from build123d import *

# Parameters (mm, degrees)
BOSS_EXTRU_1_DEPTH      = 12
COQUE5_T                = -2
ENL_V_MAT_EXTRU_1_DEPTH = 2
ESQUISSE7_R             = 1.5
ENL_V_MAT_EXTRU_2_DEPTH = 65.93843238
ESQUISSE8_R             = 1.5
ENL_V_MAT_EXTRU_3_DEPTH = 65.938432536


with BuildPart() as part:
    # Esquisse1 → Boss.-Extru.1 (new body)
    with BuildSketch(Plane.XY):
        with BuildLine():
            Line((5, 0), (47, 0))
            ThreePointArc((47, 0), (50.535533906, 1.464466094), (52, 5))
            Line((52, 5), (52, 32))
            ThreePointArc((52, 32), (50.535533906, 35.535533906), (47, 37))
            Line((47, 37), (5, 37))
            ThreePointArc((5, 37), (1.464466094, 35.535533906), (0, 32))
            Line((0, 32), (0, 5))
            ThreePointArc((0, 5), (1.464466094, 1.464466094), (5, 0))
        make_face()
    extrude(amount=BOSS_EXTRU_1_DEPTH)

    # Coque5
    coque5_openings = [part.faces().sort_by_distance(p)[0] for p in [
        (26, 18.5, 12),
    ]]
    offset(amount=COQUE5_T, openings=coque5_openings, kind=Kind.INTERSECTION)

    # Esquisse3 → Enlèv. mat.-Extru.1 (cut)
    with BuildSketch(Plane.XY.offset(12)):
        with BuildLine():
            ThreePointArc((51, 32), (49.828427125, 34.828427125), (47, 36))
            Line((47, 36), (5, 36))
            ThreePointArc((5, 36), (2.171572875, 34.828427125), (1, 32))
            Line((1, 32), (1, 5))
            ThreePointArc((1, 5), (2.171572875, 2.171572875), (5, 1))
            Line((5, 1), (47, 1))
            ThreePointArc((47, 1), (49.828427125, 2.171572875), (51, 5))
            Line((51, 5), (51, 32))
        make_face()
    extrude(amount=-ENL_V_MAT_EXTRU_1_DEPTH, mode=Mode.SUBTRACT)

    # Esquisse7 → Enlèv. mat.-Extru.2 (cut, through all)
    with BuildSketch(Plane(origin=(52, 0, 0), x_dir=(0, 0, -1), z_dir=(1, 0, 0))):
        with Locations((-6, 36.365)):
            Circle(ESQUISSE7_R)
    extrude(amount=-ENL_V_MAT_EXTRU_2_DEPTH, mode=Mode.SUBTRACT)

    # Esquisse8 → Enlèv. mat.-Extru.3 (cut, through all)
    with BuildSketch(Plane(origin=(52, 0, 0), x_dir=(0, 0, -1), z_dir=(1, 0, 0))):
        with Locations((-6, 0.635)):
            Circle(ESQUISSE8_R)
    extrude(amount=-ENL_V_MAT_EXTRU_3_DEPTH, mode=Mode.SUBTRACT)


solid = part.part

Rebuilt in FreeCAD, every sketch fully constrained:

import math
import FreeCAD as App
import Part
import Sketcher

V = App.Vector


def faces_at(feature, points):
    """Names of the faces that lie closest to the given points."""
    faces = feature.Shape.Faces
    near = lambda p: min(range(len(faces)), key=lambda i: faces[i].distToShape(Part.Vertex(*p))[0])
    return sorted({f"Face{near(p) + 1}" for p in points})

doc = App.newDocument("Part")
params = doc.addObject("Spreadsheet::Sheet", "Params")
for row, (alias, value) in enumerate([
    ("sketch1_radius", "5 mm"),
    ("sketch1_width", "42 mm"),
    ("sketch1_height", "27 mm"),
    ("pad1_length", "12 mm"),
    ("thickness_wall", "2 mm"),
    ("sketch2_radius", "4 mm"),
    ("sketch2_width", "42 mm"),
    ("sketch2_height", "27 mm"),
    ("pocket1_length", "2 mm"),
    ("sketch3_diameter", "3 mm"),
    ("sketch4_diameter", "3 mm"),
], start=1):
    params.set(f"A{row}", alias)
    params.set(f"B{row}", "=" + value)
    params.setAlias(f"B{row}", alias)

body = doc.addObject("PartDesign::Body", "Body")

# Sketch on XY plane
sketch1 = doc.addObject("Sketcher::SketchObject", "Sketch")
body.addObject(sketch1)
sketch1.AttachmentSupport = (doc.XY_Plane, [""])
sketch1.MapMode = "FlatFace"
sketch1.addGeometry([
    Part.LineSegment(V(5, 0, 0), V(47, 0, 0)),  # 0
    Part.ArcOfCircle(Part.Circle(V(47, 5, 0), V(0, 0, 1), 5), math.radians(-90), math.radians(0)),  # 1
    Part.LineSegment(V(52, 5, 0), V(52, 32, 0)),  # 2
    Part.ArcOfCircle(Part.Circle(V(47, 32, 0), V(0, 0, 1), 5), math.radians(0), math.radians(90)),  # 3
    Part.LineSegment(V(47, 37, 0), V(5, 37, 0)),  # 4
    Part.ArcOfCircle(Part.Circle(V(5, 32, 0), V(0, 0, 1), 5), math.radians(90), math.radians(180)),  # 5
    Part.LineSegment(V(0, 32, 0), V(0, 5, 0)),  # 6
    Part.ArcOfCircle(Part.Circle(V(5, 5, 0), V(0, 0, 1), 5), math.radians(180), math.radians(270)),  # 7
], False)
sketch1.addConstraint([
    Sketcher.Constraint("Tangent", 0, 2, 1, 1),
    Sketcher.Constraint("Tangent", 1, 2, 2, 1),
    Sketcher.Constraint("Tangent", 2, 2, 3, 1),
    Sketcher.Constraint("Tangent", 3, 2, 4, 1),
    Sketcher.Constraint("Tangent", 4, 2, 5, 1),
    Sketcher.Constraint("Tangent", 5, 2, 6, 1),
    Sketcher.Constraint("Tangent", 6, 2, 7, 1),
    Sketcher.Constraint("Tangent", 7, 2, 0, 1),
    Sketcher.Constraint("Horizontal", 0),
    Sketcher.Constraint("Vertical", 2),
    Sketcher.Constraint("Horizontal", 4),
    Sketcher.Constraint("Vertical", 6),
    Sketcher.Constraint("Equal", 1, 3),
    Sketcher.Constraint("Equal", 3, 5),
    Sketcher.Constraint("Equal", 5, 7),
    Sketcher.Constraint("PointOnObject", 0, 2, -1),
    Sketcher.Constraint("PointOnObject", 5, 2, -2),
    Sketcher.Constraint("Radius", 1, 5.0),
    Sketcher.Constraint("DistanceX", 0, 1, 0, 2, 42.0),
    Sketcher.Constraint("DistanceY", 2, 1, 2, 2, 27.0),
])
sketch1.setExpression("Constraints[17]", "Params.sketch1_radius")
sketch1.setExpression("Constraints[18]", "Params.sketch1_width")
sketch1.setExpression("Constraints[19]", "Params.sketch1_height")
pad1 = doc.addObject("PartDesign::Pad", "Pad")
body.addObject(pad1)
pad1.Profile = sketch1
pad1.setExpression("Length", "Params.pad1_length")
doc.recompute()

thickness = doc.addObject("PartDesign::Thickness", "Thickness")
body.addObject(thickness)
thickness.Base = (pad1, faces_at(pad1, [(26, 18.5, 12)]))
thickness.setExpression("Value", "Params.thickness_wall")
thickness.Reversed = True
thickness.Join = "Intersection"

# Sketch on XY plane
sketch2 = doc.addObject("Sketcher::SketchObject", "Sketch001")
body.addObject(sketch2)
sketch2.AttachmentSupport = (doc.XY_Plane, [""])
sketch2.MapMode = "FlatFace"
sketch2.AttachmentOffset = App.Placement(V(0, 0, 12), App.Rotation())
sketch2.addGeometry([
    Part.ArcOfCircle(Part.Circle(V(47, 32, 0), V(0, 0, 1), 4), math.radians(0), math.radians(90)),  # 0
    Part.LineSegment(V(47, 36, 0), V(5, 36, 0)),  # 1
    Part.ArcOfCircle(Part.Circle(V(5, 32, 0), V(0, 0, 1), 4), math.radians(90), math.radians(180)),  # 2
    Part.LineSegment(V(1, 32, 0), V(1, 5, 0)),  # 3
    Part.ArcOfCircle(Part.Circle(V(5, 5, 0), V(0, 0, 1), 4), math.radians(180), math.radians(270)),  # 4
    Part.LineSegment(V(5, 1, 0), V(47, 1, 0)),  # 5
    Part.ArcOfCircle(Part.Circle(V(47, 5, 0), V(0, 0, 1), 4), math.radians(-90), math.radians(0)),  # 6
    Part.LineSegment(V(51, 5, 0), V(51, 32, 0)),  # 7
], False)
sketch2.addConstraint([
    Sketcher.Constraint("Tangent", 0, 2, 1, 1),
    Sketcher.Constraint("Tangent", 1, 2, 2, 1),
    Sketcher.Constraint("Tangent", 2, 2, 3, 1),
    Sketcher.Constraint("Tangent", 3, 2, 4, 1),
    Sketcher.Constraint("Tangent", 4, 2, 5, 1),
    Sketcher.Constraint("Tangent", 5, 2, 6, 1),
    Sketcher.Constraint("Tangent", 6, 2, 7, 1),
    Sketcher.Constraint("Tangent", 7, 2, 0, 1),
    Sketcher.Constraint("Horizontal", 1),
    Sketcher.Constraint("Vertical", 3),
    Sketcher.Constraint("Horizontal", 5),
    Sketcher.Constraint("Vertical", 7),
    Sketcher.Constraint("Equal", 0, 2),
    Sketcher.Constraint("Equal", 2, 4),
    Sketcher.Constraint("Equal", 4, 6),
    Sketcher.Constraint("Radius", 0, 4.0),
    Sketcher.Constraint("DistanceX", 1, 2, 1, 1, 42.0),
    Sketcher.Constraint("DistanceY", 3, 2, 3, 1, 27.0),
    Sketcher.Constraint("DistanceX", -1, 1, 0, 3, 47.0),
    Sketcher.Constraint("DistanceY", -1, 1, 0, 3, 32.0),
])
sketch2.setExpression("Constraints[15]", "Params.sketch2_radius")
sketch2.setExpression("Constraints[16]", "Params.sketch2_width")
sketch2.setExpression("Constraints[17]", "Params.sketch2_height")
pocket1 = doc.addObject("PartDesign::Pocket", "Pocket")
body.addObject(pocket1)
pocket1.Profile = sketch2
pocket1.setExpression("Length", "Params.pocket1_length")

# Sketch on YZ plane
sketch3 = doc.addObject("Sketcher::SketchObject", "Sketch002")
body.addObject(sketch3)
sketch3.AttachmentSupport = (doc.YZ_Plane, [""])
sketch3.MapMode = "FlatFace"
sketch3.AttachmentOffset = App.Placement(V(0, 0, 52), App.Rotation())
sketch3.addGeometry(Part.Circle(V(36.365, 6, 0), V(0, 0, 1), 1.5), False)
sketch3.addConstraint([
    Sketcher.Constraint("Diameter", 0, 3.0),
    Sketcher.Constraint("DistanceY", -1, 1, 0, 3, 6.0),
    Sketcher.Constraint("DistanceX", -1, 1, 0, 3, 36.365),
])
sketch3.setExpression("Constraints[0]", "Params.sketch3_diameter")
pocket2 = doc.addObject("PartDesign::Pocket", "Pocket001")
body.addObject(pocket2)
pocket2.Profile = sketch3
pocket2.Type = "ThroughAll"

# Sketch on YZ plane
sketch4 = doc.addObject("Sketcher::SketchObject", "Sketch003")
body.addObject(sketch4)
sketch4.AttachmentSupport = (doc.YZ_Plane, [""])
sketch4.MapMode = "FlatFace"
sketch4.AttachmentOffset = App.Placement(V(0, 0, 52), App.Rotation())
sketch4.addGeometry(Part.Circle(V(0.635, 6, 0), V(0, 0, 1), 1.5), False)
sketch4.addConstraint([
    Sketcher.Constraint("Diameter", 0, 3.0),
    Sketcher.Constraint("DistanceY", -1, 1, 0, 3, 6.0),
    Sketcher.Constraint("DistanceX", -1, 1, 0, 3, 0.635),
])
sketch4.setExpression("Constraints[0]", "Params.sketch4_diameter")
pocket3 = doc.addObject("PartDesign::Pocket", "Pocket002")
body.addObject(pocket3)
pocket3.Profile = sketch4
pocket3.Type = "ThroughAll"

doc.recompute()
